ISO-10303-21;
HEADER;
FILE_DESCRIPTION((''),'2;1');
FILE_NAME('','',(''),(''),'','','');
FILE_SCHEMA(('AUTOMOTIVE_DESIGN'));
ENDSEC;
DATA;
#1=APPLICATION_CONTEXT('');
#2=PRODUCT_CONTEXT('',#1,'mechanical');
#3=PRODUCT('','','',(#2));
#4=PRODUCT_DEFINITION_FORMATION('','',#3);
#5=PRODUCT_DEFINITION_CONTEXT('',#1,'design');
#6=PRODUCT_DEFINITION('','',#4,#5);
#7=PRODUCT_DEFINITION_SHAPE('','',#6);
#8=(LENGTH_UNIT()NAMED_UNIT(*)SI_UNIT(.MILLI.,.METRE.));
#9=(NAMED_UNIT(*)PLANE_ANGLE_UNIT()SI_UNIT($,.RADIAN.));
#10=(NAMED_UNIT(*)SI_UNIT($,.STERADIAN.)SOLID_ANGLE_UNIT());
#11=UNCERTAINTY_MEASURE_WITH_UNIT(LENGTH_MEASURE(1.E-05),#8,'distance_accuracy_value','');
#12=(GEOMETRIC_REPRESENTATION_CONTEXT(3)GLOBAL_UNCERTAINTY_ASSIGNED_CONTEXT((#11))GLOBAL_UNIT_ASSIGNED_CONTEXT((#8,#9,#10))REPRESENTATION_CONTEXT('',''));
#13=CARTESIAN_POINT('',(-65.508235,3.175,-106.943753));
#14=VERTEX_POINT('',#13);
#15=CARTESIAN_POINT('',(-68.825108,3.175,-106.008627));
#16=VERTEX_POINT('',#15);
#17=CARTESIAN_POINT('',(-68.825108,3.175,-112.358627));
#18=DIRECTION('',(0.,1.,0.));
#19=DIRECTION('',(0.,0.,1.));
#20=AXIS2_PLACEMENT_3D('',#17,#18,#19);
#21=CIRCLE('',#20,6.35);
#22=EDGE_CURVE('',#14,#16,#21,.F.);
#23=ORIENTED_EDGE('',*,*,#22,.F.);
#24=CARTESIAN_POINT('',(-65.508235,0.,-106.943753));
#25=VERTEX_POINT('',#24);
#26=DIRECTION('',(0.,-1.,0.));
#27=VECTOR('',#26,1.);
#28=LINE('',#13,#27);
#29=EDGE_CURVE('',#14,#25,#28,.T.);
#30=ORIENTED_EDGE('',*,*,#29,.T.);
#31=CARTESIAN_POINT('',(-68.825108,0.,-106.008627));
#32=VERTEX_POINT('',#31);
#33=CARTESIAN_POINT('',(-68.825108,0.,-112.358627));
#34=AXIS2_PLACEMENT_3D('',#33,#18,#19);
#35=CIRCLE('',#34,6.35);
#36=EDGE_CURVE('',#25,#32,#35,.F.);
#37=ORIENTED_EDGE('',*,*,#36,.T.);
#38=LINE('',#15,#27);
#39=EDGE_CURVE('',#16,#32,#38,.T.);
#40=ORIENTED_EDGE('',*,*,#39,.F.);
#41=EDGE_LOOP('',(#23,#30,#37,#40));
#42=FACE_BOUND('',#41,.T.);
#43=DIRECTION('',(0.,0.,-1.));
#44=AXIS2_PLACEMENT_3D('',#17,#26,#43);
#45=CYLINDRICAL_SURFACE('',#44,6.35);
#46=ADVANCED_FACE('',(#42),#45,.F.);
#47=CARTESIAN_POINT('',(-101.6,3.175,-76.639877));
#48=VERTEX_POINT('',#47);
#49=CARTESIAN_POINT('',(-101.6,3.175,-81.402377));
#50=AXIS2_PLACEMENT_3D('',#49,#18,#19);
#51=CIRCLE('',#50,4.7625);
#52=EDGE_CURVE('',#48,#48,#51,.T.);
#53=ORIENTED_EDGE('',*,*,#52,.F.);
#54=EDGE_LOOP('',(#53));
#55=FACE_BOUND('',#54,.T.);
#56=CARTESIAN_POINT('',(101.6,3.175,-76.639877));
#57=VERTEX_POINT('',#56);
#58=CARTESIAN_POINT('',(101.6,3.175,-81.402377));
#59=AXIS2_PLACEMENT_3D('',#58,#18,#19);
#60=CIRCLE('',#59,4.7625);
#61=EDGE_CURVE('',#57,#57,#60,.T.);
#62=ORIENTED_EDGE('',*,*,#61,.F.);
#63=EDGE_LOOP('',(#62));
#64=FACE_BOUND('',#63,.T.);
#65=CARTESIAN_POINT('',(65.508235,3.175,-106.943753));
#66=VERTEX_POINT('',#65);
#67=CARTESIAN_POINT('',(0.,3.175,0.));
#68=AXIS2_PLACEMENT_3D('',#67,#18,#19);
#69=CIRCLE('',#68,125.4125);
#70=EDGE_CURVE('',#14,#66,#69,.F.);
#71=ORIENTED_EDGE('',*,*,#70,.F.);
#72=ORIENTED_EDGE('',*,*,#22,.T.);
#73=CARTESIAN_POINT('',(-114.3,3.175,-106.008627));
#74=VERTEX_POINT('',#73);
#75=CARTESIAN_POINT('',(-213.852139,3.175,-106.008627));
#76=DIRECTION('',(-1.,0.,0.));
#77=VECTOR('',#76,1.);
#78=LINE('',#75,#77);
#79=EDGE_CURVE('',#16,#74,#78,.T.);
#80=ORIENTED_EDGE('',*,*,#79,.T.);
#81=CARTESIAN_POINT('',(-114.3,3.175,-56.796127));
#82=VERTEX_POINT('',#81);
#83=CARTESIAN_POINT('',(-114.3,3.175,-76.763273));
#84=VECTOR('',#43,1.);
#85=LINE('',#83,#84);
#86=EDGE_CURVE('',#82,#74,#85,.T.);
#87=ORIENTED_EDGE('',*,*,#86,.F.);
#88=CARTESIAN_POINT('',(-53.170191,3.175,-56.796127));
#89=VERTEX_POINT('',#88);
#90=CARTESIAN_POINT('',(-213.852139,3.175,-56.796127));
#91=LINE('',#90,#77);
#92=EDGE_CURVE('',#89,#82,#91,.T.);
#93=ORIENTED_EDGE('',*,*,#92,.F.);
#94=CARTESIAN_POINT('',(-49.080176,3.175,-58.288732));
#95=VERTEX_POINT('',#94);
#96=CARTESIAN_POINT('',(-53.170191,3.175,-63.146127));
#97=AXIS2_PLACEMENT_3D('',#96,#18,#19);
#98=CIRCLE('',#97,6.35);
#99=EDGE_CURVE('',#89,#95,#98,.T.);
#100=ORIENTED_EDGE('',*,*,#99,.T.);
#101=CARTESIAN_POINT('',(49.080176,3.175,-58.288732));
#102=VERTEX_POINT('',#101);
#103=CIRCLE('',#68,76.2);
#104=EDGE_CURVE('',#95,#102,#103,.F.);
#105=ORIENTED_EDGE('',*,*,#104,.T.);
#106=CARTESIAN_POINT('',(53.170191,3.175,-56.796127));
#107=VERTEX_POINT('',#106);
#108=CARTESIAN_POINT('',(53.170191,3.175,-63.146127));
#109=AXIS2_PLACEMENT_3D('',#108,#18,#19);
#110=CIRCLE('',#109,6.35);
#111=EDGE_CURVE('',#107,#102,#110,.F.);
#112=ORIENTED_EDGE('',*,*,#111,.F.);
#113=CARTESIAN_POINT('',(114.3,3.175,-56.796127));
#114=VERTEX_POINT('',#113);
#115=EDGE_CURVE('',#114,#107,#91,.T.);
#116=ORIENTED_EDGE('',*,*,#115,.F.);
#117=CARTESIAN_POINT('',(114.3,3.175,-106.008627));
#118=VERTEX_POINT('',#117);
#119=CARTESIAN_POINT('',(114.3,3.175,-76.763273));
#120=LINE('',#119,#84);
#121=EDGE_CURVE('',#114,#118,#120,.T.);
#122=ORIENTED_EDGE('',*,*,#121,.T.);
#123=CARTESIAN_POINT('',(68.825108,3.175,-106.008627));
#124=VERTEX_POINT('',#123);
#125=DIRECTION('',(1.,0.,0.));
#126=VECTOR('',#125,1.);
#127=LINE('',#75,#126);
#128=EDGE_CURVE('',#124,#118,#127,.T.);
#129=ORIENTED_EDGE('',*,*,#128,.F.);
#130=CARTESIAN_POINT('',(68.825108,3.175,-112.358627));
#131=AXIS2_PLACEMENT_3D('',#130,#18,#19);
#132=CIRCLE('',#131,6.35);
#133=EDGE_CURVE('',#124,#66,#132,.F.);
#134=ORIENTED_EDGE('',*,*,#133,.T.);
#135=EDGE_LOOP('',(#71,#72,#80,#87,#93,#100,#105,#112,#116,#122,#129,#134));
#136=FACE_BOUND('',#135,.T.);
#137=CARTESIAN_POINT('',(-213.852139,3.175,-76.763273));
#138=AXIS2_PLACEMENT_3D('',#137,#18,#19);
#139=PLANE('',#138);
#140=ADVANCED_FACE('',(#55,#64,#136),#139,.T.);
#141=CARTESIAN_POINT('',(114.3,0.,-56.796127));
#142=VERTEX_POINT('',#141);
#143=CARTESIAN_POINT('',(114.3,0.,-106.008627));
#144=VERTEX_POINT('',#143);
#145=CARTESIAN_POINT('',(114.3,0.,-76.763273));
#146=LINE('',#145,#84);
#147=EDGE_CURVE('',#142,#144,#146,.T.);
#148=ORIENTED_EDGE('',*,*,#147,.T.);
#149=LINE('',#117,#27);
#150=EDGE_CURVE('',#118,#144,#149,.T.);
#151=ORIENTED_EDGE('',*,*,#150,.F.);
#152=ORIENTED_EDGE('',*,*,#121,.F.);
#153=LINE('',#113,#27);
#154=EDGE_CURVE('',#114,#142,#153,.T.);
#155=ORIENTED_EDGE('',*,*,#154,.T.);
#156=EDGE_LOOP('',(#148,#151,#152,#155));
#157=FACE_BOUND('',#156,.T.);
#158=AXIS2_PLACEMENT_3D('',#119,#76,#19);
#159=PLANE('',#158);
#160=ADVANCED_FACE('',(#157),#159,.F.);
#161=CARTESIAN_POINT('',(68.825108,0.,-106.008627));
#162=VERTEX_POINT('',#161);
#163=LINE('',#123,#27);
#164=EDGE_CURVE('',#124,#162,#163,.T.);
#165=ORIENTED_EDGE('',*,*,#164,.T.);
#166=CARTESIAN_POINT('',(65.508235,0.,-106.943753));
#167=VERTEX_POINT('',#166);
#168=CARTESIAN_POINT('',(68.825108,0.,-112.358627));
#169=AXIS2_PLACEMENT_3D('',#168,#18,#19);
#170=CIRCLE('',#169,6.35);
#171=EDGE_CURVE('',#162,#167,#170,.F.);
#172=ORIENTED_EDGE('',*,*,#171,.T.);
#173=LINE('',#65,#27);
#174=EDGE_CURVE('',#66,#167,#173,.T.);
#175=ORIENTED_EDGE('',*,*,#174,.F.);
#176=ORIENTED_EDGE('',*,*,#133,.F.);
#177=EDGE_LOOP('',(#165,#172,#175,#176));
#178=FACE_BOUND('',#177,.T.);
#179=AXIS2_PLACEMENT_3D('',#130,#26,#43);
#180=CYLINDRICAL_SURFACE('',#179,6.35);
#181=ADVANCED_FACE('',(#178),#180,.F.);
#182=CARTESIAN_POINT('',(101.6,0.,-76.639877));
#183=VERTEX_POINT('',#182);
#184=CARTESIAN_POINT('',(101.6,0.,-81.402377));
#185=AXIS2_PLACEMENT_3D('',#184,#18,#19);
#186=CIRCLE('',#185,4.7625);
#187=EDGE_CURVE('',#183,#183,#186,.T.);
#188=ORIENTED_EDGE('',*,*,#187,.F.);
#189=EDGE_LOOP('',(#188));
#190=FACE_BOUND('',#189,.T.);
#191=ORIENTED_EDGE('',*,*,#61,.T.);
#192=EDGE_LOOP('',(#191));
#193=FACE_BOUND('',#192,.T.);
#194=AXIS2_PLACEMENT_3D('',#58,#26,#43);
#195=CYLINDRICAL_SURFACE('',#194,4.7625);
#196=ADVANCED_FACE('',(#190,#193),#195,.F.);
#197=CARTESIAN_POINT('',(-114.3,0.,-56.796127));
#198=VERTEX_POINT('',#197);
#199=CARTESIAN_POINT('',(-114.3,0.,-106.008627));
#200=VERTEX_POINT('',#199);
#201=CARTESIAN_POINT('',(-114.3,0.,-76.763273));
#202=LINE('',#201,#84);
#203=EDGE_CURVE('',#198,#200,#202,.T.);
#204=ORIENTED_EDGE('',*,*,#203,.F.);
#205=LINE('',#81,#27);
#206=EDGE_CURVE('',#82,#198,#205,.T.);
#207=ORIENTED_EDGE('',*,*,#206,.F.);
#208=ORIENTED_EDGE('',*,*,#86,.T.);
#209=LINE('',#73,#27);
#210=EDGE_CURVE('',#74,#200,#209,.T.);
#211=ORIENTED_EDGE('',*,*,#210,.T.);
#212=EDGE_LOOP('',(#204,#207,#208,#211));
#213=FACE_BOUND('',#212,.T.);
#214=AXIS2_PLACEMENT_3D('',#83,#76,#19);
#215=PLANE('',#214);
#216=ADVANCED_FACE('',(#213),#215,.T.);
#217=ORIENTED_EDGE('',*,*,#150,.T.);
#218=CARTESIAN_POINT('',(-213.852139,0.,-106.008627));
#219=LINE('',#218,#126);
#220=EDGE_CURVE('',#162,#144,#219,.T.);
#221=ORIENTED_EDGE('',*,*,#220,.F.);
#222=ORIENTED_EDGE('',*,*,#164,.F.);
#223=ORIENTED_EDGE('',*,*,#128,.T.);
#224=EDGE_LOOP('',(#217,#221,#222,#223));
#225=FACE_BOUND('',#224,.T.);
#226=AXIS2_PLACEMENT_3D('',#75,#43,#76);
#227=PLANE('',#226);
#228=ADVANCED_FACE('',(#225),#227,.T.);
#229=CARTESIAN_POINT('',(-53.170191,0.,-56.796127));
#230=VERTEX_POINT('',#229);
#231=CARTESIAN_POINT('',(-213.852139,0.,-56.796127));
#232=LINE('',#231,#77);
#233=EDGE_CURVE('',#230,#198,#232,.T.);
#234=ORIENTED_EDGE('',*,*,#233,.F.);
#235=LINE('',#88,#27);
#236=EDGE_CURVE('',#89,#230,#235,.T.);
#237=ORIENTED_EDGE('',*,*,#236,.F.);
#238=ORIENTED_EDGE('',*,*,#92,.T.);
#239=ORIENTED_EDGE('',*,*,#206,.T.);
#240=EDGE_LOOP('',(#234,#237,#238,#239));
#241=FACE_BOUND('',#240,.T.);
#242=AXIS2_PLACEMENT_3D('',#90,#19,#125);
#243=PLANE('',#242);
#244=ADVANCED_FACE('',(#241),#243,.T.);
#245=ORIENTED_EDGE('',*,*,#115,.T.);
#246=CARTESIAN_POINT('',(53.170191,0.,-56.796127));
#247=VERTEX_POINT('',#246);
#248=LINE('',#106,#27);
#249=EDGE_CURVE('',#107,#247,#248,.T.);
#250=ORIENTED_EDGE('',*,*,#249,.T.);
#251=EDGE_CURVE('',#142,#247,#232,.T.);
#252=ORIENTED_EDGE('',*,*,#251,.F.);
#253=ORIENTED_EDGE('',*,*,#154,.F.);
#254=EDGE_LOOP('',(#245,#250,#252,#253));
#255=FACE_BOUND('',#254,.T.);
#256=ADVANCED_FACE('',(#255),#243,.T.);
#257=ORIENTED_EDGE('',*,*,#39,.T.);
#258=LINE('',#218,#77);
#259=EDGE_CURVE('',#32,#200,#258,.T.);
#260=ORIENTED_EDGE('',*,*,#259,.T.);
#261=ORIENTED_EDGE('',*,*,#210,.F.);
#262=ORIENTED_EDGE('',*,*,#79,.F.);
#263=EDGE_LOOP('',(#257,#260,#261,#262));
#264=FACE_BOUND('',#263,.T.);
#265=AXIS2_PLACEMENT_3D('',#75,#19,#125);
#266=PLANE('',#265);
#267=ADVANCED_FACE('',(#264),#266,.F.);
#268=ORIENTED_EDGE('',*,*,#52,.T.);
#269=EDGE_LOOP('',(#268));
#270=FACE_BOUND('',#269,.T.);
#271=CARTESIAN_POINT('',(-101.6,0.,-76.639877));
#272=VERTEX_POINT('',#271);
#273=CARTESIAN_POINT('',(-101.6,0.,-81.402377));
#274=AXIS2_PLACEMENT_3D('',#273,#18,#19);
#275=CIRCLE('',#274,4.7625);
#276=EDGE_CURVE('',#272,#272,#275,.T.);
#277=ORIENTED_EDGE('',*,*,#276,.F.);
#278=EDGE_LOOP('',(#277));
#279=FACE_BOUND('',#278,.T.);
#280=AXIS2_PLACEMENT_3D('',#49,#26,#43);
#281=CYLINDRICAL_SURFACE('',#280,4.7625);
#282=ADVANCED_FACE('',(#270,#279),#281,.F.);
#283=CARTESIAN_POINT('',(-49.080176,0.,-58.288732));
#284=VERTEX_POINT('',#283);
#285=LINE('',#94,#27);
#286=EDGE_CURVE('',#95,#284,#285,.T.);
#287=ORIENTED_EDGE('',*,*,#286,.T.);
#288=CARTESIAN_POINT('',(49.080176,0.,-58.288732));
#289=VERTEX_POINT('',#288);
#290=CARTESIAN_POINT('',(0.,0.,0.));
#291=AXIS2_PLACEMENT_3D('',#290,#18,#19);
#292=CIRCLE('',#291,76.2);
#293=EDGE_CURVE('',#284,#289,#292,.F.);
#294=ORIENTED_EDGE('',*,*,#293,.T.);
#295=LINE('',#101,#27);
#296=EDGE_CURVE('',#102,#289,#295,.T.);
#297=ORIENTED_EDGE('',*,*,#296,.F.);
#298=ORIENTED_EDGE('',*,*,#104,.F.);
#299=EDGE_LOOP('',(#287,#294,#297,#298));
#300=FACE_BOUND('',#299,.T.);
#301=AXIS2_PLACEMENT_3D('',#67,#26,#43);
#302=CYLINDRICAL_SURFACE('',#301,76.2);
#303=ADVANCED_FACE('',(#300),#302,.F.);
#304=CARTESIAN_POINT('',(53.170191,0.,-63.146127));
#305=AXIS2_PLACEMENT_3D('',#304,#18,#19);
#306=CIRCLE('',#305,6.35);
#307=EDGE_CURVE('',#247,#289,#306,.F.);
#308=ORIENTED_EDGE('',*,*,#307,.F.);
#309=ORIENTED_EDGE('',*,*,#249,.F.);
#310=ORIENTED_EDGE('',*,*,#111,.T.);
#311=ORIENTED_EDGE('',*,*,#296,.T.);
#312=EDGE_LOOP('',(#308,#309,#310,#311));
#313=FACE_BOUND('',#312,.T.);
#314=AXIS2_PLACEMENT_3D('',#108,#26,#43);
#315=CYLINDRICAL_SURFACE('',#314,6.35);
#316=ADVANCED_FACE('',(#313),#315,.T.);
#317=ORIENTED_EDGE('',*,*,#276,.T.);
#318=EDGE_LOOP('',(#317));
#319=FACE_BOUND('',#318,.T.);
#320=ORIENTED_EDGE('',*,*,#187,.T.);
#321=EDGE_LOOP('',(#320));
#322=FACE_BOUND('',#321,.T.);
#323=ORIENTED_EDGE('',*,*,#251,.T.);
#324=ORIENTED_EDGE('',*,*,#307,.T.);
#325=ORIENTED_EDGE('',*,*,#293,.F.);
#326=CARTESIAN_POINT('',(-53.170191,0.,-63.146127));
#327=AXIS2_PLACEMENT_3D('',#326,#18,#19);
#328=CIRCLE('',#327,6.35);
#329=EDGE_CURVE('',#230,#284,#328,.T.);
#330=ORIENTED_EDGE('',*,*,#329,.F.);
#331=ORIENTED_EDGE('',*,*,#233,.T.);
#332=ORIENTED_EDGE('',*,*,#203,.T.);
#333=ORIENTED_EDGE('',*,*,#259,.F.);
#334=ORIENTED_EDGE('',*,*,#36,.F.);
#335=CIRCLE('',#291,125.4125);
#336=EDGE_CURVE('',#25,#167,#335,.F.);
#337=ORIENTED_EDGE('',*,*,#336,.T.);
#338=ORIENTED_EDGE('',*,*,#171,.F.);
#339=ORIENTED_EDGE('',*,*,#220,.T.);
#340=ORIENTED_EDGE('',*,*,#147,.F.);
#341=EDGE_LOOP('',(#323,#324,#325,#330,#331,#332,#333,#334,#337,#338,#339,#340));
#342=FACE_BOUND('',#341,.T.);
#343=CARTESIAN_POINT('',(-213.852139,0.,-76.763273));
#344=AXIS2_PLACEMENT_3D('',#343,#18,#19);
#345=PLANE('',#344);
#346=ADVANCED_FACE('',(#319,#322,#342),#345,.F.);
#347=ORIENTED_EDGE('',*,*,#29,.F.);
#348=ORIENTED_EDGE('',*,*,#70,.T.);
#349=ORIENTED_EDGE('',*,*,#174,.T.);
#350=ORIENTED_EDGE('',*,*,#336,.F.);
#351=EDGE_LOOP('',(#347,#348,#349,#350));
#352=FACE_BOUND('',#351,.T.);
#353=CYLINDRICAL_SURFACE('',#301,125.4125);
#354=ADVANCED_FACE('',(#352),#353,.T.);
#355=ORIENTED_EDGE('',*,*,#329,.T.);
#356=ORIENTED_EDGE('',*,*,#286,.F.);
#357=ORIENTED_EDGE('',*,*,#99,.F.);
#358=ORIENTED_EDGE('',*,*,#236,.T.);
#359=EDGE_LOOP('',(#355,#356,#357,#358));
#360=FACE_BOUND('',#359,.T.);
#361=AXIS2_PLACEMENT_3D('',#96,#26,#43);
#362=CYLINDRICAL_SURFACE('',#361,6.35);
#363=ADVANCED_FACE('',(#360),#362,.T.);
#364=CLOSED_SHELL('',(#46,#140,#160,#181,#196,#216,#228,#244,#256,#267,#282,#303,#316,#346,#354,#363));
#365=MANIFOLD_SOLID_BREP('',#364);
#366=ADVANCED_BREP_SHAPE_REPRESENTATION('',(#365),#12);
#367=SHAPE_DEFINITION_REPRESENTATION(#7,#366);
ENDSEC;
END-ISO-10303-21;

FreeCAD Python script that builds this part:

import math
import FreeCAD as App
import Part
import Sketcher
from FreeCAD import Vector
Q = App.Units.Quantity

doc = App.newDocument("Part")
params = doc.addObject("Spreadsheet::Sheet", "Params")
for row, (alias, value) in enumerate([
    ("sketch1_radius", "3 in"),
    ("sketch1_radius2", "0.25 in"),
    ("sketch1_diameter", "0.375 in"),
    ("sketch1_radius3", "4.9375 in"),
    ("sketch1_height", "1.9375 in"),
    ("pad1_length", "0.125 in"),
], start=1):
    params.set(f"A{row}", alias)
    params.set(f"B{row}", "=" + value)
    params.setAlias(f"B{row}", alias)

body = doc.addObject("PartDesign::Body", "Body")

# Sketch on XZ plane
sketch1 = body.newObject("Sketcher::SketchObject", "Sketch")
sketch1.AttachmentSupport = (doc.getObject("XZ_Plane"), [""])
sketch1.MapMode = "FlatFace"
sketch1.addGeometry([
    Part.LineSegment(Vector(-114.3, -56.796127, 0), Vector(-53.170191, -56.796127, 0)),  # 0
    Part.ArcOfCircle(Part.Circle(Vector(-53.170191, -63.146127, 0), Vector(0, 0, 1), 6.35), math.radians(49.90201), math.radians(90)),  # 1
    Part.ArcOfCircle(Part.Circle(Vector(0, 0, 0), Vector(0, 0, 1), 76.2), math.radians(-130.09799), math.radians(-49.90201)),  # 2
    Part.ArcOfCircle(Part.Circle(Vector(53.170191, -63.146127, 0), Vector(0, 0, 1), 6.35), math.radians(90), math.radians(130.09799)),  # 3
    Part.LineSegment(Vector(53.170191, -56.796127, 0), Vector(114.3, -56.796127, 0)),  # 4
    Part.LineSegment(Vector(114.3, -56.796127, 0), Vector(114.3, -106.008627, 0)),  # 5
    Part.LineSegment(Vector(114.3, -106.008627, 0), Vector(68.825108, -106.008627, 0)),  # 6
    Part.ArcOfCircle(Part.Circle(Vector(68.825108, -112.358627, 0), Vector(0, 0, 1), 6.35), math.radians(90), math.radians(121.48949)),  # 7
    Part.ArcOfCircle(Part.Circle(Vector(0, 0, 0), Vector(0, 0, 1), 125.4125), math.radians(-121.48949), math.radians(-58.51051)),  # 8
    Part.ArcOfCircle(Part.Circle(Vector(-68.825108, -112.358627, 0), Vector(0, 0, 1), 6.35), math.radians(58.51051), math.radians(90)),  # 9
    Part.LineSegment(Vector(-68.825108, -106.008627, 0), Vector(-114.3, -106.008627, 0)),  # 10
    Part.LineSegment(Vector(-114.3, -106.008627, 0), Vector(-114.3, -56.796127, 0)),  # 11
    Part.Circle(Vector(101.6, -81.402377, 0), Vector(0, 0, 1), 4.7625),  # 12
    Part.Circle(Vector(-101.6, -81.402377, 0), Vector(0, 0, 1), 4.7625),  # 13
], False)
sketch1.addConstraint([
    Sketcher.Constraint("Tangent", 0, 2, 1, 2),
    Sketcher.Constraint("Tangent", 1, 1, 2, 1),
    Sketcher.Constraint("Tangent", 2, 2, 3, 2),
    Sketcher.Constraint("Tangent", 3, 1, 4, 1),
    Sketcher.Constraint("Coincident", 4, 2, 5, 1),
    Sketcher.Constraint("Coincident", 5, 2, 6, 1),
    Sketcher.Constraint("Tangent", 6, 2, 7, 1),
    Sketcher.Constraint("Tangent", 7, 2, 8, 2),
    Sketcher.Constraint("Tangent", 8, 1, 9, 1),
    Sketcher.Constraint("Tangent", 9, 2, 10, 1),
    Sketcher.Constraint("Coincident", 10, 2, 11, 1),
    Sketcher.Constraint("Coincident", 11, 2, 0, 1),
    Sketcher.Constraint("Horizontal", 0),
    Sketcher.Constraint("Horizontal", 4),
    Sketcher.Constraint("Vertical", 5),
    Sketcher.Constraint("Horizontal", 6),
    Sketcher.Constraint("Horizontal", 10),
    Sketcher.Constraint("Vertical", 11),
    Sketcher.Constraint("Coincident", 2, 3, -1, 1),
    Sketcher.Constraint("Coincident", 8, 3, -1, 1),
    Sketcher.Constraint("Equal", 1, 3),
    Sketcher.Constraint("Equal", 3, 7),
    Sketcher.Constraint("Equal", 7, 9),
    Sketcher.Constraint("Equal", 12, 13),
    Sketcher.Constraint("Symmetric", 12, 3, 13, 3, -2),
    Sketcher.Constraint("Symmetric", 5, 2, 10, 2, -2),
    Sketcher.Constraint("Horizontal", 1, 3, 3, 3),
    Sketcher.Constraint("Radius", 2, Q("3 in")),
    Sketcher.Constraint("Radius", 1, Q("0.25 in")),
    Sketcher.Constraint("Diameter", 12, Q("0.375 in")),
    Sketcher.Constraint("DistanceX", -1, 1, 12, 3, Q("4 in")),
    Sketcher.Constraint("Radius", 8, Q("4.9375 in")),
    Sketcher.Constraint("DistanceX", -1, 1, 4, 2, Q("4.5 in")),
    Sketcher.Constraint("DistanceY", 5, 2, 5, 1, Q("1.9375 in")),
    Sketcher.Constraint("DistanceY", 7, 3, 12, 3, Q("1.21875 in")),
    Sketcher.Constraint("DistanceX", 9, 3, 7, 3, Q("5.4192998 in")),
])
sketch1.setExpression("Constraints[27]", "Params.sketch1_radius")
sketch1.setExpression("Constraints[28]", "Params.sketch1_radius2")
sketch1.setExpression("Constraints[29]", "Params.sketch1_diameter")
sketch1.setExpression("Constraints[31]", "Params.sketch1_radius3")
sketch1.setExpression("Constraints[33]", "Params.sketch1_height")
pad1 = body.newObject("PartDesign::Pad", "Pad")
pad1.Profile = sketch1
pad1.setExpression("Length", "Params.pad1_length")
pad1.Reversed = True

doc.recompute()
